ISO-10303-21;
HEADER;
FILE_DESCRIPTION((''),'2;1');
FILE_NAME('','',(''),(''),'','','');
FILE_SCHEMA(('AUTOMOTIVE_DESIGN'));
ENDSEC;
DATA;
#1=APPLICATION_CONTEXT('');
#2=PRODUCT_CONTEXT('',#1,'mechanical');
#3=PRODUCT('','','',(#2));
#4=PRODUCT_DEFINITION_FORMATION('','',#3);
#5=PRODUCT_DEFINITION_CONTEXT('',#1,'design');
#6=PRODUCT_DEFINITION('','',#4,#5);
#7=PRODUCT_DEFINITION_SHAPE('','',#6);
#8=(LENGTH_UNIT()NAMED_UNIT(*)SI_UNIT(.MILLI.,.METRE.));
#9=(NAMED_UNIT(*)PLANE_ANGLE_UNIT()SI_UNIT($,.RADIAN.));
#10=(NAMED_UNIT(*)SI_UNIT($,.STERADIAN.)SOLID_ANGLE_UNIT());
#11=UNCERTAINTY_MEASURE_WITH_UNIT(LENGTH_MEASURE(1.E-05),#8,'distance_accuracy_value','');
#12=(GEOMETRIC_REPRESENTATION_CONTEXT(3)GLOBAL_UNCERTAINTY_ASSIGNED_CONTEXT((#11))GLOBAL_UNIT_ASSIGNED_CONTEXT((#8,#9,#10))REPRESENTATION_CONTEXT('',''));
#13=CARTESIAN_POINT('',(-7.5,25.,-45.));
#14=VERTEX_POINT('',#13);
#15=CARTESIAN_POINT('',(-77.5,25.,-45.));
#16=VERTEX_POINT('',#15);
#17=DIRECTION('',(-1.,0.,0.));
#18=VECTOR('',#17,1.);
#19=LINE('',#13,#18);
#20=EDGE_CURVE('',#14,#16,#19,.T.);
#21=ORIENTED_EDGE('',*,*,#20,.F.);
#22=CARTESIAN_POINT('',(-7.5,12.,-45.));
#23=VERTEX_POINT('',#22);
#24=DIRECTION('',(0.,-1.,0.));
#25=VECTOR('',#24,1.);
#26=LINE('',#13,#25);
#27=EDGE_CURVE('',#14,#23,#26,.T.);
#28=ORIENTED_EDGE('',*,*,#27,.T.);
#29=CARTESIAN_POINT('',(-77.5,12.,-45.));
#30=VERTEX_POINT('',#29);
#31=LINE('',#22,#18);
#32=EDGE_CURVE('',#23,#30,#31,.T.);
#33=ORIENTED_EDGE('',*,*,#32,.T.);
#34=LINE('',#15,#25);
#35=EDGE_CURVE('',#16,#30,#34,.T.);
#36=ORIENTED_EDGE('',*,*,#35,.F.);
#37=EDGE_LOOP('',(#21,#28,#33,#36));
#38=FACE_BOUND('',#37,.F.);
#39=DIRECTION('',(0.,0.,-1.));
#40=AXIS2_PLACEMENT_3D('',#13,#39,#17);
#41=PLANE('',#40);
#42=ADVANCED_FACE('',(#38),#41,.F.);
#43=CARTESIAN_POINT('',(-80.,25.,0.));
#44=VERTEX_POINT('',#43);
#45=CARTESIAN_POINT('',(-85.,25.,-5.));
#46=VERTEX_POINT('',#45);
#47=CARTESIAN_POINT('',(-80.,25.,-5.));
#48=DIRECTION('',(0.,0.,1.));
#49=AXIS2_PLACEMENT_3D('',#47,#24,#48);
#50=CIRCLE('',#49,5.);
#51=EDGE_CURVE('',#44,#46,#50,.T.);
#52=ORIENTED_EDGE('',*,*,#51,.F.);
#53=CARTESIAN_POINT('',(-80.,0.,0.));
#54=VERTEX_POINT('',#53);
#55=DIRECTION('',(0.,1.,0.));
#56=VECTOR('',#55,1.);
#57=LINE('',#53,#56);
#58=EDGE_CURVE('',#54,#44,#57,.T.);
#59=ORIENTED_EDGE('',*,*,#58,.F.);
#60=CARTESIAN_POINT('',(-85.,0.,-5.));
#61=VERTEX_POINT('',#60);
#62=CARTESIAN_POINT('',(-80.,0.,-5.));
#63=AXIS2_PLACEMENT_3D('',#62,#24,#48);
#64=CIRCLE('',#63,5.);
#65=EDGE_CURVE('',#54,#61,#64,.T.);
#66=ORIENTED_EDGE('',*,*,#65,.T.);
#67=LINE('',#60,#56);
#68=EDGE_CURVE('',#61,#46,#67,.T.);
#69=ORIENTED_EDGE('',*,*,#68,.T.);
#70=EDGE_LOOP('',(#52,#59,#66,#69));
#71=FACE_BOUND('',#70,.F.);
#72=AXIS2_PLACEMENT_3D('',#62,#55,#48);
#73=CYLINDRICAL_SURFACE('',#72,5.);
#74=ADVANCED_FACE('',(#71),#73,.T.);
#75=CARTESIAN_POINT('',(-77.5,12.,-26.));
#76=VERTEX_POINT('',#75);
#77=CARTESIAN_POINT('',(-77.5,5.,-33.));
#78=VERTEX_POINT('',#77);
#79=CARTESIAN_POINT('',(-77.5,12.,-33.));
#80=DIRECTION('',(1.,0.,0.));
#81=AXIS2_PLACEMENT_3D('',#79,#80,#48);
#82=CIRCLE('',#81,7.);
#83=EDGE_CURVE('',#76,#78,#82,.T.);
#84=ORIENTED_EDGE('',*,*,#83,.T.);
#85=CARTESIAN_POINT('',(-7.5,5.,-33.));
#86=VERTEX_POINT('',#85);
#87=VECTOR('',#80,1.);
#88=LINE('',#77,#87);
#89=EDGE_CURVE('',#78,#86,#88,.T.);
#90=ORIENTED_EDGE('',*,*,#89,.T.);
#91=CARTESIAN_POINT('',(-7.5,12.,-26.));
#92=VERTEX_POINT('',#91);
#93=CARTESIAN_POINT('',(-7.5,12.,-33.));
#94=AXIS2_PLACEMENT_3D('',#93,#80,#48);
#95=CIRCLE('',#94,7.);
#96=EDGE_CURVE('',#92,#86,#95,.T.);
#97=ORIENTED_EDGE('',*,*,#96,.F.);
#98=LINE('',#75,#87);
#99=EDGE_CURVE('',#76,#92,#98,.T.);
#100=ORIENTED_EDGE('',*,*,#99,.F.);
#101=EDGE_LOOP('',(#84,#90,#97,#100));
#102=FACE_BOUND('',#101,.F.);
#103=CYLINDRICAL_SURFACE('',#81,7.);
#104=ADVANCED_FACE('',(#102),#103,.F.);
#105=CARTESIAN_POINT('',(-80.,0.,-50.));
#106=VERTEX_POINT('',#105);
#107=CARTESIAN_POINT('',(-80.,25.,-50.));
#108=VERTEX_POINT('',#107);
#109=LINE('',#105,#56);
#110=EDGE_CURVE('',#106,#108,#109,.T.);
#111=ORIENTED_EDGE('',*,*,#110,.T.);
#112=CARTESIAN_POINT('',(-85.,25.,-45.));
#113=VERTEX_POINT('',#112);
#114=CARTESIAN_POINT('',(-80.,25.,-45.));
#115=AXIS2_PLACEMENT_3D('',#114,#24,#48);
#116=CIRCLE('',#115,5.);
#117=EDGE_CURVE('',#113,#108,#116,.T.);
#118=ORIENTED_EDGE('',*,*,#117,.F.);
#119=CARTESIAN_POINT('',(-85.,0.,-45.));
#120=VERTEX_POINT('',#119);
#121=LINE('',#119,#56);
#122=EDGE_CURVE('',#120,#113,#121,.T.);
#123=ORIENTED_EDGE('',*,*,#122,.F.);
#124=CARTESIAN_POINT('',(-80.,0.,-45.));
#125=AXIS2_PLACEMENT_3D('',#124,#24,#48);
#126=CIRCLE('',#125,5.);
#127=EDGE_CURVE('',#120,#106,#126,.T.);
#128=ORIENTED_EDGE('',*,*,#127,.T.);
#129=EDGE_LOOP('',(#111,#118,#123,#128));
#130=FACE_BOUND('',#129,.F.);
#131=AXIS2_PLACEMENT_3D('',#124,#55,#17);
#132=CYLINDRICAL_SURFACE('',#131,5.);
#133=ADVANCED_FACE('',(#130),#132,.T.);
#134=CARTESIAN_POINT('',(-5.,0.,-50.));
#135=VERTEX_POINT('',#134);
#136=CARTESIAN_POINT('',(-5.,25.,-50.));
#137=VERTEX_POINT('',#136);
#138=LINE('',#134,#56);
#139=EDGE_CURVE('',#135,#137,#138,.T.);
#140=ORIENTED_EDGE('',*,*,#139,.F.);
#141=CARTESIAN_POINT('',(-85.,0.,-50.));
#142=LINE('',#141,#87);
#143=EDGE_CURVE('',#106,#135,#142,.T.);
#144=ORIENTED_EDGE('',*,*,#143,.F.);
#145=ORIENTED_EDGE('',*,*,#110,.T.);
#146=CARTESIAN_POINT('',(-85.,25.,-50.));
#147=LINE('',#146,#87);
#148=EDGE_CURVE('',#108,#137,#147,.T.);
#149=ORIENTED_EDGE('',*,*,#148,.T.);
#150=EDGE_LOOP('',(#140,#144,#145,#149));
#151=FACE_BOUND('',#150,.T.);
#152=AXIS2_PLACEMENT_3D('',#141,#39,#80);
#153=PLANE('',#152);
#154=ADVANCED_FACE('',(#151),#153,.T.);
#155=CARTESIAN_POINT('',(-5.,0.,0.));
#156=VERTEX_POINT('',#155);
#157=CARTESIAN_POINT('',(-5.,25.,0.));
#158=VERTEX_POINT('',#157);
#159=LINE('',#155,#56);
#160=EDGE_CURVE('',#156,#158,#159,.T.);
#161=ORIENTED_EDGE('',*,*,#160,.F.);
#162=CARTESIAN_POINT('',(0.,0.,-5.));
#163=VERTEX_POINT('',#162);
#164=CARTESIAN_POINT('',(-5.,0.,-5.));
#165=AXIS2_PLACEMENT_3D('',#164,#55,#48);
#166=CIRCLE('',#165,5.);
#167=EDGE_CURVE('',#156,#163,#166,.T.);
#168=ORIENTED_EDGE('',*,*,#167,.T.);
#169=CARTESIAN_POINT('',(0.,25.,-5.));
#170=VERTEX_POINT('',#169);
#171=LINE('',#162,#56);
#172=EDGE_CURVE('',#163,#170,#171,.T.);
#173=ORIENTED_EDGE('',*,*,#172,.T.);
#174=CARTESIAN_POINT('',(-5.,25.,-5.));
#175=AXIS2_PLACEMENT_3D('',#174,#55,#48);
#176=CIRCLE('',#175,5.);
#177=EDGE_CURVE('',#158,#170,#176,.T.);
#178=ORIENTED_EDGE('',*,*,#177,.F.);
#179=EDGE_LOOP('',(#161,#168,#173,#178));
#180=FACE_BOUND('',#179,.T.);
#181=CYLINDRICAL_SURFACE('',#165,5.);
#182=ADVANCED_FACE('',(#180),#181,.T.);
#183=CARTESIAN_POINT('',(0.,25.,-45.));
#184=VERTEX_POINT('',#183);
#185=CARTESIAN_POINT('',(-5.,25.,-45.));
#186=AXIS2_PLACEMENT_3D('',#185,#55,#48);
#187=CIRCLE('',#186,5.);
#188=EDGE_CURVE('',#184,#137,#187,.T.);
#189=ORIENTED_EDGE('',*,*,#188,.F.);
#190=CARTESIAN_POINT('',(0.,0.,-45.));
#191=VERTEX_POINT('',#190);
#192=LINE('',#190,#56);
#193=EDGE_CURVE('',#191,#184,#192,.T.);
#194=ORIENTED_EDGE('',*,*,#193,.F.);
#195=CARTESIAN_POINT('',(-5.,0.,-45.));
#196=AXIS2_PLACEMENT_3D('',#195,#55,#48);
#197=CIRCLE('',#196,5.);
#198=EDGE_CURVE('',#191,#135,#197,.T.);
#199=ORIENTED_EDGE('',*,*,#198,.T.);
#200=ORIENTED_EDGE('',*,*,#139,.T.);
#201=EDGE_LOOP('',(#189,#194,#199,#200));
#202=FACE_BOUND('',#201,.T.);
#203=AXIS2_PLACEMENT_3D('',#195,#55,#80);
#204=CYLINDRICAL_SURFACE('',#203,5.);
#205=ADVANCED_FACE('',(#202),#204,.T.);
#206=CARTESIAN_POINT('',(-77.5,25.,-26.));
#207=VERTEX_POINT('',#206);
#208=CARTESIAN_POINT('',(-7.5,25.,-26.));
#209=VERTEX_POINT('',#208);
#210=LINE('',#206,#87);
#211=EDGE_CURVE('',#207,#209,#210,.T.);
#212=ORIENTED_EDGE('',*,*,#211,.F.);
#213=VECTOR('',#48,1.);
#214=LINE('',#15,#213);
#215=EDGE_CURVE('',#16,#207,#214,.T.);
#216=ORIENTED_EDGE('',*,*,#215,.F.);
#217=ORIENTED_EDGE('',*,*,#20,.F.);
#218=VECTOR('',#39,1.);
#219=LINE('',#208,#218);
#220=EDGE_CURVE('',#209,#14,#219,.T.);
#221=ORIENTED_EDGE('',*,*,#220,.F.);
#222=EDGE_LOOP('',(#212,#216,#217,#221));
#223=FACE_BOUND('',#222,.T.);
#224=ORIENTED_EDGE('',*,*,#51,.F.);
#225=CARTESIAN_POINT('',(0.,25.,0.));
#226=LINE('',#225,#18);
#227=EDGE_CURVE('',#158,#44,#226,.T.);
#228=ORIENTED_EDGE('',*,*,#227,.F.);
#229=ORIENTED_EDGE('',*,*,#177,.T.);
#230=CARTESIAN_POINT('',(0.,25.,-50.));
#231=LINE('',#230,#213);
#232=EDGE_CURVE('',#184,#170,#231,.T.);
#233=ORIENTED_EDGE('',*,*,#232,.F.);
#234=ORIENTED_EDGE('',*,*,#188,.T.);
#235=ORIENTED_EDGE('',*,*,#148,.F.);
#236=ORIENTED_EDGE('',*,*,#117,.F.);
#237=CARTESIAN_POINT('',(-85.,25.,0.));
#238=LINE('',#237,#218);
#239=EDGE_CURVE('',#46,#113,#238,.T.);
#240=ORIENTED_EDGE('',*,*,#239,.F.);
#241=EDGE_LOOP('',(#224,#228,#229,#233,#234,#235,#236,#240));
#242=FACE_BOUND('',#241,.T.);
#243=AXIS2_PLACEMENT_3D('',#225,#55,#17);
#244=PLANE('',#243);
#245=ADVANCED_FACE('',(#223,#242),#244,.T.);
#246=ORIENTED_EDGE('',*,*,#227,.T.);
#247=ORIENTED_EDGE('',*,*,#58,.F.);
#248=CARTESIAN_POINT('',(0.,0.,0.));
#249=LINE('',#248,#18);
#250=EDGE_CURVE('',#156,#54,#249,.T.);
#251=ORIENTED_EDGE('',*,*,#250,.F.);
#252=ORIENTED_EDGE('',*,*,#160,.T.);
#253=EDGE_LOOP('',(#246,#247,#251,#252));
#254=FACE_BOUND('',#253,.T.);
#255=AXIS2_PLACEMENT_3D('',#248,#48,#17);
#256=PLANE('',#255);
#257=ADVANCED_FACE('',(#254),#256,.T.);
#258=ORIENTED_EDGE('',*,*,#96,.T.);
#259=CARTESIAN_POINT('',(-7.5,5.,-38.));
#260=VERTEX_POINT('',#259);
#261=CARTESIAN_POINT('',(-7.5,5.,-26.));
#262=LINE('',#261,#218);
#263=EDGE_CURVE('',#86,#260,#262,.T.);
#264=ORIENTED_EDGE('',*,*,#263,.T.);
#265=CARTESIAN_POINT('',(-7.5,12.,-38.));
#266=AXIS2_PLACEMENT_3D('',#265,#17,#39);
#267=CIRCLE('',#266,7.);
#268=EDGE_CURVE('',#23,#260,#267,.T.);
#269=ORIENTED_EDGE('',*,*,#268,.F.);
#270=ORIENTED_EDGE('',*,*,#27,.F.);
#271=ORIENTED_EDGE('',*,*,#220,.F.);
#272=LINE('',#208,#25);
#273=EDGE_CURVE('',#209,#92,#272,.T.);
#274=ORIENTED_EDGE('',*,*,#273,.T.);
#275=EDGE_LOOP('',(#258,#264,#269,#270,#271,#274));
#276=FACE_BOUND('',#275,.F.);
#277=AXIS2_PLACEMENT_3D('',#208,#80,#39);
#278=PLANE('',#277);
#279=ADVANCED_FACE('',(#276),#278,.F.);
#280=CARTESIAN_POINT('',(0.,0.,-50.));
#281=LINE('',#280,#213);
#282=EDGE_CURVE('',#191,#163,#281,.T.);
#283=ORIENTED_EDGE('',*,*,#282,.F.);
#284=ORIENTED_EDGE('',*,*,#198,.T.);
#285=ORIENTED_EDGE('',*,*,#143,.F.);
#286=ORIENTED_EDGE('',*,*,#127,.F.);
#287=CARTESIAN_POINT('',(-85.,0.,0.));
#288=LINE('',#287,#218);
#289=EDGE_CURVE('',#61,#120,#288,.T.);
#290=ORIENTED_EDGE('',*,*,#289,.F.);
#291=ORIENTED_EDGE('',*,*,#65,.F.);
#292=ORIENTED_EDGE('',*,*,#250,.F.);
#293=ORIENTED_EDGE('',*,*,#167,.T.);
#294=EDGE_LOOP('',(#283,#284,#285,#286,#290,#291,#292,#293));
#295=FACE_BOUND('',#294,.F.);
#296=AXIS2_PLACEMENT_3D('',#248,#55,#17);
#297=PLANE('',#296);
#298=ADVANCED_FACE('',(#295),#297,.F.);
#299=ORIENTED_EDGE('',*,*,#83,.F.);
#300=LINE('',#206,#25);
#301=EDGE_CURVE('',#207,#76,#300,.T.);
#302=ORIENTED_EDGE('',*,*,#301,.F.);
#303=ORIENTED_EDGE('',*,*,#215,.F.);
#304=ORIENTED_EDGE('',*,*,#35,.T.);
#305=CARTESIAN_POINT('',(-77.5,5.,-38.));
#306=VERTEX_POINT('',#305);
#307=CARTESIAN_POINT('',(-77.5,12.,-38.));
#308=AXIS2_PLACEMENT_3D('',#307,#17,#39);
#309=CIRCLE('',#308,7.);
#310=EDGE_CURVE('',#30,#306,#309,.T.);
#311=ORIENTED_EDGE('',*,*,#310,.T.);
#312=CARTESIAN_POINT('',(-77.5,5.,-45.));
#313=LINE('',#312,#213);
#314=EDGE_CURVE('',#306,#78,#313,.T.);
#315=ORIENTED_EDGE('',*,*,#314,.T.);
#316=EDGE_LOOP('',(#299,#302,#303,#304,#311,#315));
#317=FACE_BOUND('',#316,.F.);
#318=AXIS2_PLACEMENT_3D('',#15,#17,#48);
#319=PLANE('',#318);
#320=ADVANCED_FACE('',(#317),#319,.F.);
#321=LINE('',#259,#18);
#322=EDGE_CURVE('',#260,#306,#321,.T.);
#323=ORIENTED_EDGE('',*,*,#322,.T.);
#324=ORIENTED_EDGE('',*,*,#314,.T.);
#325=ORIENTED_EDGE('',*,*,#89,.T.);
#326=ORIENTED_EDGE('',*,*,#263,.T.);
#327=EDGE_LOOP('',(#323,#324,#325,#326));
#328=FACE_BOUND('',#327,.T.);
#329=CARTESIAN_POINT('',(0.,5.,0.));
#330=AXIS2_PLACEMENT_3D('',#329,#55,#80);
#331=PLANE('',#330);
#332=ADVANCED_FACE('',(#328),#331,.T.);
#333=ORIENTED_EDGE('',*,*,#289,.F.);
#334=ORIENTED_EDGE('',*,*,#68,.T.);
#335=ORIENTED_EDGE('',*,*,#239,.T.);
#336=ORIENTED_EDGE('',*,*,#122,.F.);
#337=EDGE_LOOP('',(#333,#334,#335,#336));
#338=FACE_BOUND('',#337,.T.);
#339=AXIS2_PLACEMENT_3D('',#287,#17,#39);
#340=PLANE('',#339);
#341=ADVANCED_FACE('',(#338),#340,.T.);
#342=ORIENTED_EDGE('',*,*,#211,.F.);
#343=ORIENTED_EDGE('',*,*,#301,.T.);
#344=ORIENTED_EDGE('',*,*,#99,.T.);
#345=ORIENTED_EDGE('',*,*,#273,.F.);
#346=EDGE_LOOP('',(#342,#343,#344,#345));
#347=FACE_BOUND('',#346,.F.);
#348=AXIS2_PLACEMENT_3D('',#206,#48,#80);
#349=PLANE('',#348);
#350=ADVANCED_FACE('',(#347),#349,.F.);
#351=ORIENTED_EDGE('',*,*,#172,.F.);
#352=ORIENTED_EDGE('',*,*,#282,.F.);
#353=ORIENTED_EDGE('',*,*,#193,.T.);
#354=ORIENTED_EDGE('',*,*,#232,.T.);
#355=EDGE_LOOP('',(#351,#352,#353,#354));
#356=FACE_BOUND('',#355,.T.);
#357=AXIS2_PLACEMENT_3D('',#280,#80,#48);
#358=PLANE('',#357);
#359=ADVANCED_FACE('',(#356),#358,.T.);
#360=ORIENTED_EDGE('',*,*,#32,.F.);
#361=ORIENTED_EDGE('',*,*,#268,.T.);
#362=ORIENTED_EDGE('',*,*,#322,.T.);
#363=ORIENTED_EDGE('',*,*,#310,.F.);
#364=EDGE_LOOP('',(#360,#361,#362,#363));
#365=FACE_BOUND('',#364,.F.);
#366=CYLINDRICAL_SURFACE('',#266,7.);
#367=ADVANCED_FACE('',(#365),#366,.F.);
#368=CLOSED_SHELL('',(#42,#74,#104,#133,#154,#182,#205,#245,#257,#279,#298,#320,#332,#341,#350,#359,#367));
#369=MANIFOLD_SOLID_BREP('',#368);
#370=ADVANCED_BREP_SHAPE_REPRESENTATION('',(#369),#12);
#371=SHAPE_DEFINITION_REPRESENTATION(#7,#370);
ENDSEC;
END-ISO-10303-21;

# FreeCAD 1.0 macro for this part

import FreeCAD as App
import Part
import Sketcher

V = App.Vector
Q = App.Units.Quantity


def edges_at(feature, points):
    """Names of the edges that pass closest to the given points."""
    edges = feature.Shape.Edges
    near = lambda p: min(range(len(edges)), key=lambda i: edges[i].distToShape(Part.Vertex(*p))[0])
    return sorted({f"Edge{near(p) + 1}" for p in points})


def add_polygon(sketch, points):
    """Adds a closed chain of lines whose ends are joined by coincident constraints."""
    first, n = sketch.GeometryCount, len(points)
    for a, b in zip(points, points[1:] + points[:1]):
        sketch.addGeometry(Part.LineSegment(App.Vector(*a, 0), App.Vector(*b, 0)), False)
    for i in range(n):
        sketch.addConstraint(Sketcher.Constraint("Coincident", first + i, 2, first + (i + 1) % n, 1))

doc = App.newDocument("Part")
body = doc.addObject("PartDesign::Body", "Body")

sketch1 = body.newObject("Sketcher::SketchObject", "Sketch")
sketch1.AttachmentSupport = (doc.getObject("XZ_Plane"), [""])
sketch1.MapMode = "FlatFace"
add_polygon(sketch1, [(-85, 0), (0, 0), (0, -50), (-85, -50)])
sketch1.addConstraint(Sketcher.Constraint("Horizontal", 0))
sketch1.addConstraint(Sketcher.Constraint("Vertical", 1))
sketch1.addConstraint(Sketcher.Constraint("Horizontal", 2))
sketch1.addConstraint(Sketcher.Constraint("Vertical", 3))
sketch1.addConstraint(Sketcher.Constraint("Coincident", 0, 2, -1, 1))
sketch1.addConstraint(Sketcher.Constraint("DistanceX", 0, 1, 0, 2, Q("85 mm")))
sketch1.addConstraint(Sketcher.Constraint("DistanceY", 1, 2, 1, 1, Q("50 mm")))
pad1 = body.newObject("PartDesign::Pad", "Pad")
pad1.Profile = sketch1
pad1.Length = 25
pad1.Reversed = True

sketch2 = body.newObject("Sketcher::SketchObject", "Sketch001")
sketch2.AttachmentSupport = (doc.getObject("XZ_Plane"), [""])
sketch2.MapMode = "FlatFace"
sketch2.AttachmentOffset = App.Placement(V(0, 0, -25), App.Rotation())
add_polygon(sketch2, [(-78, -45), (-78, -26), (-8, -26), (-8, -45)])
sketch2.addConstraint(Sketcher.Constraint("Vertical", 0))
sketch2.addConstraint(Sketcher.Constraint("Horizontal", 1))
sketch2.addConstraint(Sketcher.Constraint("Vertical", 2))
sketch2.addConstraint(Sketcher.Constraint("Horizontal", 3))
sketch2.addConstraint(Sketcher.Constraint("DistanceX", 1, 1, 1, 2, Q("70 mm")))
sketch2.addConstraint(Sketcher.Constraint("DistanceY", 0, 1, 0, 2, Q("19 mm")))
sketch2.addConstraint(Sketcher.Constraint("DistanceX", 1, 2, -1, 1, Q("7.5 mm")))
sketch2.addConstraint(Sketcher.Constraint("DistanceY", 0, 2, -1, 1, Q("26 mm")))
pocket1 = body.newObject("PartDesign::Pocket", "Pocket")
pocket1.Profile = sketch2
pocket1.Length = 20
pocket1.Reversed = True
doc.recompute()

fillet = body.newObject("PartDesign::Fillet", "Fillet")
fillet.Base = (pocket1, edges_at(pocket1, [
    (-85, 12.5, 0),
    (-85, 12.5, -50),
    (0, 12.5, -50),
    (0, 12.5, 0),
]))
fillet.Radius = 5
doc.recompute()

fillet2 = body.newObject("PartDesign::Fillet", "Fillet001")
fillet2.Base = (fillet, edges_at(fillet, [(-42.5, 5, -26), (-42.5, 5, -45)]))
fillet2.Radius = 7

doc.recompute()
